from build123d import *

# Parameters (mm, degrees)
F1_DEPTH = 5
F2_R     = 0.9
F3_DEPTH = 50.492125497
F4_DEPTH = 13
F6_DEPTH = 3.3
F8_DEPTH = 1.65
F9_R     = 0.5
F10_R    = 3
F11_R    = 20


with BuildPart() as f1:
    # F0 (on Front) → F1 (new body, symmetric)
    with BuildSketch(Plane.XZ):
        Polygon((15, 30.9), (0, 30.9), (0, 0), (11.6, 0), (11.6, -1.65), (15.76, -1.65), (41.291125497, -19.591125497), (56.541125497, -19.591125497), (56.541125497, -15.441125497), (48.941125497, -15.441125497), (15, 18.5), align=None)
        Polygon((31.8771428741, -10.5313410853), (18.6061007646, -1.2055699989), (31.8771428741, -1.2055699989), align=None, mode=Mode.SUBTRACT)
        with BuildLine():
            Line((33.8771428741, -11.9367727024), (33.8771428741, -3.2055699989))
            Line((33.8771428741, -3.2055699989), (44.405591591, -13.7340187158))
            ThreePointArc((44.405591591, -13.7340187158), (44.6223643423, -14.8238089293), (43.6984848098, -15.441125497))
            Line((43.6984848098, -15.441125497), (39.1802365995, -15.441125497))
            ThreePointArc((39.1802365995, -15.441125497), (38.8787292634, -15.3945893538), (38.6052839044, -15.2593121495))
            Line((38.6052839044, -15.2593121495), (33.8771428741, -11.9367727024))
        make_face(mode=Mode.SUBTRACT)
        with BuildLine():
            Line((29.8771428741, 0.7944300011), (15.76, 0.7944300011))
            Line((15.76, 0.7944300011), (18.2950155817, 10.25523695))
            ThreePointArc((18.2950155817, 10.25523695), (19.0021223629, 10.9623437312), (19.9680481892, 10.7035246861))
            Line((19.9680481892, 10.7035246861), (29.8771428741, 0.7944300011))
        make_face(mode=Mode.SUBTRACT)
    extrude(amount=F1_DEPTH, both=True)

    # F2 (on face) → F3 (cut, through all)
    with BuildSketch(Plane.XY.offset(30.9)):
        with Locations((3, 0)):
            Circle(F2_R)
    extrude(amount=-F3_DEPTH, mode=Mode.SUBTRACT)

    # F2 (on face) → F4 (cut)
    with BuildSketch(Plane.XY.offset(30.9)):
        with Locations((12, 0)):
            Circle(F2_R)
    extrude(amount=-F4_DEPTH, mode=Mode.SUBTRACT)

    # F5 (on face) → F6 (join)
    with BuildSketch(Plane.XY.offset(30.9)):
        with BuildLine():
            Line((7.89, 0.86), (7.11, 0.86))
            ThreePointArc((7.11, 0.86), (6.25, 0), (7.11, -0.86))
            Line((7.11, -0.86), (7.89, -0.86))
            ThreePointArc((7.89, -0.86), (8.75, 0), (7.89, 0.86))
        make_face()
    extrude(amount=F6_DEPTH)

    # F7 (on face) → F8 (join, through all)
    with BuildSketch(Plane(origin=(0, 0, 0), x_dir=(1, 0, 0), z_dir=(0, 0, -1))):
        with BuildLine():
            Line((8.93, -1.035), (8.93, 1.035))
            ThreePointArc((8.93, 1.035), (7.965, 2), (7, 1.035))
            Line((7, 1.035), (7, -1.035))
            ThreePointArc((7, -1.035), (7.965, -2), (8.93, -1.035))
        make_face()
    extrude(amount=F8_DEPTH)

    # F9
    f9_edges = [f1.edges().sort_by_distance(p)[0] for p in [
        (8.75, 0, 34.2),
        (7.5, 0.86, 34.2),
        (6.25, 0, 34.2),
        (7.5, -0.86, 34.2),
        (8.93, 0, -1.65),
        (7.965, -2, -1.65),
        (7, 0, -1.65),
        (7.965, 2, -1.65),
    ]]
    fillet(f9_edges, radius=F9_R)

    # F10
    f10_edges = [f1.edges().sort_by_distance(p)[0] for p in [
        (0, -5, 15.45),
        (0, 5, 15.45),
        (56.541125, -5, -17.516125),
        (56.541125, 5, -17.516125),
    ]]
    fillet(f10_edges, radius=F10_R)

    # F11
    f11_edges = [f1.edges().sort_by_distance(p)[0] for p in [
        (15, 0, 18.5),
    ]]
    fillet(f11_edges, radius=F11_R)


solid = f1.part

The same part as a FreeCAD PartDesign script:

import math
import FreeCAD as App
import Part
import Sketcher

V = App.Vector
Q = App.Units.Quantity


def edges_at(feature, points):
    """Names of the edges that pass closest to the given points."""
    edges = feature.Shape.Edges
    near = lambda p: min(range(len(edges)), key=lambda i: edges[i].distToShape(Part.Vertex(*p))[0])
    return sorted({f"Edge{near(p) + 1}" for p in points})


def add_polygon(sketch, points):
    """Adds a closed chain of lines whose ends are joined by coincident constraints."""
    first, n = sketch.GeometryCount, len(points)
    for a, b in zip(points, points[1:] + points[:1]):
        sketch.addGeometry(Part.LineSegment(App.Vector(*a, 0), App.Vector(*b, 0)), False)
    for i in range(n):
        sketch.addConstraint(Sketcher.Constraint("Coincident", first + i, 2, first + (i + 1) % n, 1))

doc = App.newDocument("Part")
body = doc.addObject("PartDesign::Body", "Body")

# Sketch on XZ plane
sketch1 = doc.addObject("Sketcher::SketchObject", "Sketch")
body.addObject(sketch1)
sketch1.AttachmentSupport = (doc.XZ_Plane, [""])
sketch1.MapMode = "FlatFace"
add_polygon(sketch1, [(15, 30.9), (0, 30.9), (0, 0), (11.6, 0), (11.6, -1.6), (15.8, -1.6), (41.3, -19.6), (56.5, -19.6), (56.5, -15.4), (48.9, -15.4), (15, 18.5)])  # lines 0-10
add_polygon(sketch1, [(31.9, -1.2), (31.9, -10.5), (18.6, -1.2)])  # lines 11-13
sketch1.addGeometry(Part.LineSegment(V(38.6, -15.3, 0), V(33.9, -11.9, 0)), False)  # 14
sketch1.addGeometry(Part.LineSegment(V(33.9, -11.9, 0), V(33.9, -3.2, 0)), False)  # 15
sketch1.addGeometry(Part.LineSegment(V(33.9, -3.2, 0), V(44.4, -13.7, 0)), False)  # 16
sketch1.addGeometry(Part.ArcOfCircle(Part.Circle(V(43.7, -14.4, 0), V(0, 0, 1), 1), math.radians(-90), math.radians(45)), False)  # 17
sketch1.addGeometry(Part.LineSegment(V(43.7, -15.4, 0), V(39.2, -15.4, 0)), False)  # 18
sketch1.addGeometry(Part.ArcOfCircle(Part.Circle(V(39.2, -14.4, 0), V(0, 0, 1), 1), math.radians(-125), math.radians(-90)), False)  # 19
sketch1.addGeometry(Part.LineSegment(V(20, 10.7, 0), V(29.9, 0.8, 0)), False)  # 20
sketch1.addGeometry(Part.LineSegment(V(29.9, 0.8, 0), V(15.8, 0.8, 0)), False)  # 21
sketch1.addGeometry(Part.LineSegment(V(15.8, 0.8, 0), V(18.3, 10.3, 0)), False)  # 22
sketch1.addGeometry(Part.ArcOfCircle(Part.Circle(V(19.3, 10, 0), V(0, 0, 1), 1), math.radians(45), math.radians(165)), False)  # 23
sketch1.addConstraint(Sketcher.Constraint("Coincident", 14, 2, 15, 1))
sketch1.addConstraint(Sketcher.Constraint("Coincident", 15, 2, 16, 1))
sketch1.addConstraint(Sketcher.Constraint("Tangent", 16, 2, 17, 2))
sketch1.addConstraint(Sketcher.Constraint("Tangent", 17, 1, 18, 1))
sketch1.addConstraint(Sketcher.Constraint("Tangent", 18, 2, 19, 2))
sketch1.addConstraint(Sketcher.Constraint("Tangent", 19, 1, 14, 1))
sketch1.addConstraint(Sketcher.Constraint("Coincident", 20, 2, 21, 1))
sketch1.addConstraint(Sketcher.Constraint("Coincident", 21, 2, 22, 1))
sketch1.addConstraint(Sketcher.Constraint("Tangent", 22, 2, 23, 2))
sketch1.addConstraint(Sketcher.Constraint("Tangent", 23, 1, 20, 1))
sketch1.addConstraint(Sketcher.Constraint("Horizontal", 0))
sketch1.addConstraint(Sketcher.Constraint("Vertical", 1))
sketch1.addConstraint(Sketcher.Constraint("Horizontal", 2))
sketch1.addConstraint(Sketcher.Constraint("Vertical", 3))
sketch1.addConstraint(Sketcher.Constraint("Horizontal", 4))
sketch1.addConstraint(Sketcher.Constraint("Horizontal", 6))
sketch1.addConstraint(Sketcher.Constraint("Vertical", 7))
sketch1.addConstraint(Sketcher.Constraint("Horizontal", 8))
sketch1.addConstraint(Sketcher.Constraint("Vertical", 10))
sketch1.addConstraint(Sketcher.Constraint("Vertical", 11))
sketch1.addConstraint(Sketcher.Constraint("Horizontal", 13))
sketch1.addConstraint(Sketcher.Constraint("Vertical", 15))
sketch1.addConstraint(Sketcher.Constraint("Horizontal", 18))
sketch1.addConstraint(Sketcher.Constraint("Horizontal", 21))
sketch1.addConstraint(Sketcher.Constraint("Coincident", 1, 2, -1, 1))
sketch1.addConstraint(Sketcher.Constraint("Equal", 17, 19))
sketch1.addConstraint(Sketcher.Constraint("Equal", 19, 23))
sketch1.addConstraint(Sketcher.Constraint("Parallel", 5, 12))
sketch1.addConstraint(Sketcher.Constraint("Parallel", 12, 14))
sketch1.addConstraint(Sketcher.Constraint("Parallel", 9, 16))
sketch1.addConstraint(Sketcher.Constraint("Parallel", 16, 20))
sketch1.addConstraint(Sketcher.Constraint("Horizontal", 8, 2, 17, 1))
sketch1.addConstraint(Sketcher.Constraint("Vertical", 4, 2, 21, 2))
sketch1.addConstraint(Sketcher.Constraint("Radius", 17, Q("1 mm")))
sketch1.addConstraint(Sketcher.Constraint("DistanceX", 0, 2, 0, 1, Q("15 mm")))
sketch1.addConstraint(Sketcher.Constraint("Angle", 9, Q("135 deg")))
sketch1.addConstraint(Sketcher.Constraint("Angle", 22, Q("75 deg")))
sketch1.addConstraint(Sketcher.Constraint("Distance", 9, Q("48 mm")))
sketch1.addConstraint(Sketcher.Constraint("DistanceX", 2, 1, 2, 2, Q("11.6 mm")))
sketch1.addConstraint(Sketcher.Constraint("DistanceX", 8, 2, 8, 1, Q("7.6 mm")))
sketch1.addConstraint(Sketcher.Constraint("DistanceY", 1, 2, 1, 1, Q("30.9 mm")))
sketch1.addConstraint(Sketcher.Constraint("DistanceY", 10, 1, 10, 2, Q("12.4 mm")))
sketch1.addConstraint(Sketcher.Constraint("DistanceX", 11, 2, 14, 2, Q("2 mm")))
sketch1.addConstraint(Sketcher.Constraint("DistanceY", 15, 2, 13, 2, Q("2 mm")))
sketch1.addConstraint(Sketcher.Constraint("DistanceX", 20, 2, 13, 2, Q("2 mm")))
sketch1.addConstraint(Sketcher.Constraint("DistanceY", 13, 2, 20, 2, Q("2 mm")))
sketch1.addConstraint(Sketcher.Constraint("DistanceX", 4, 1, 4, 2, Q("4.16 mm")))
sketch1.addConstraint(Sketcher.Constraint("DistanceX", 6, 1, 6, 2, Q("15.25 mm")))
sketch1.addConstraint(Sketcher.Constraint("DistanceY", 3, 2, 3, 1, Q("1.65 mm")))
sketch1.addConstraint(Sketcher.Constraint("DistanceY", 7, 1, 7, 2, Q("4.15 mm")))
sketch1.addConstraint(Sketcher.Constraint("DistanceX", 18, 2, 18, 1, Q("4.518248 mm")))
sketch1.addConstraint(Sketcher.Constraint("DistanceY", 11, 2, 11, 1, Q("9.325771 mm")))
sketch1.addConstraint(Sketcher.Constraint("DistanceX", -1, 1, 12, 2, Q("18.606101 mm")))
sketch1.addConstraint(Sketcher.Constraint("DistanceY", 15, 1, 15, 2, Q("8.731203 mm")))
pad1 = doc.addObject("PartDesign::Pad", "Pad")
body.addObject(pad1)
pad1.Profile = sketch1
pad1.Length = 10
pad1.Midplane = True

# Sketch on XY plane
sketch2 = doc.addObject("Sketcher::SketchObject", "Sketch001")
body.addObject(sketch2)
sketch2.AttachmentSupport = (doc.XY_Plane, [""])
sketch2.MapMode = "FlatFace"
sketch2.AttachmentOffset = App.Placement(V(0, 0, 30.9), App.Rotation())
sketch2.addGeometry(Part.Circle(V(3, 0, 0), V(0, 0, 1), 0.9), False)
sketch2.addConstraint(Sketcher.Constraint("PointOnObject", 0, 3, -1))
sketch2.addConstraint(Sketcher.Constraint("Diameter", 0, Q("1.8 mm")))
sketch2.addConstraint(Sketcher.Constraint("DistanceX", -1, 1, 0, 3, Q("3 mm")))
pocket1 = doc.addObject("PartDesign::Pocket", "Pocket")
body.addObject(pocket1)
pocket1.Profile = sketch2
pocket1.Type = "ThroughAll"

# Sketch on XY plane
sketch3 = doc.addObject("Sketcher::SketchObject", "Sketch002")
body.addObject(sketch3)
sketch3.AttachmentSupport = (doc.XY_Plane, [""])
sketch3.MapMode = "FlatFace"
sketch3.AttachmentOffset = App.Placement(V(0, 0, 30.9), App.Rotation())
sketch3.addGeometry(Part.Circle(V(12, 0, 0), V(0, 0, 1), 0.9), False)
sketch3.addConstraint(Sketcher.Constraint("PointOnObject", 0, 3, -1))
sketch3.addConstraint(Sketcher.Constraint("Diameter", 0, Q("1.8 mm")))
sketch3.addConstraint(Sketcher.Constraint("DistanceX", -1, 1, 0, 3, Q("12 mm")))
pocket2 = doc.addObject("PartDesign::Pocket", "Pocket001")
body.addObject(pocket2)
pocket2.Profile = sketch3
pocket2.Length = 13

# Sketch on XY plane
sketch4 = doc.addObject("Sketcher::SketchObject", "Sketch003")
body.addObject(sketch4)
sketch4.AttachmentSupport = (doc.XY_Plane, [""])
sketch4.MapMode = "FlatFace"
sketch4.AttachmentOffset = App.Placement(V(0, 0, 30.9), App.Rotation())
sketch4.addGeometry(Part.LineSegment(V(7.9, 0.9, 0), V(7.1, 0.9, 0)), False)
sketch4.addGeometry(Part.ArcOfCircle(Part.Circle(V(7.1, 0, 0), V(0, 0, 1), 0.9), math.radians(90), math.radians(270)), False)
sketch4.addGeometry(Part.LineSegment(V(7.1, -0.9, 0), V(7.9, -0.9, 0)), False)
sketch4.addGeometry(Part.ArcOfCircle(Part.Circle(V(7.9, 0, 0), V(0, 0, 1), 0.9), math.radians(-90), math.radians(90)), False)
sketch4.addConstraint(Sketcher.Constraint("Tangent", 0, 2, 1, 1))
sketch4.addConstraint(Sketcher.Constraint("Tangent", 1, 2, 2, 1))
sketch4.addConstraint(Sketcher.Constraint("Tangent", 2, 2, 3, 1))
sketch4.addConstraint(Sketcher.Constraint("Tangent", 3, 2, 0, 1))
sketch4.addConstraint(Sketcher.Constraint("Horizontal", 0))
sketch4.addConstraint(Sketcher.Constraint("Horizontal", 2))
sketch4.addConstraint(Sketcher.Constraint("PointOnObject", 1, 3, -1))
sketch4.addConstraint(Sketcher.Constraint("Radius", 1, Q("0.86 mm")))
sketch4.addConstraint(Sketcher.Constraint("DistanceX", 0, 2, 0, 1, Q("0.78 mm")))
sketch4.addConstraint(Sketcher.Constraint("DistanceX", -1, 1, 1, 3, Q("7.11 mm")))
pad2 = doc.addObject("PartDesign::Pad", "Pad001")
body.addObject(pad2)
pad2.Profile = sketch4
pad2.Length = 3.3

# Sketch on XY plane
sketch5 = doc.addObject("Sketcher::SketchObject", "Sketch004")
body.addObject(sketch5)
sketch5.AttachmentSupport = (doc.XY_Plane, [""])
sketch5.MapMode = "FlatFace"
sketch5.addGeometry(Part.LineSegment(V(8.9, 1, 0), V(8.9, -1, 0)), False)
sketch5.addGeometry(Part.ArcOfCircle(Part.Circle(V(8, -1, 0), V(0, 0, 1), 1), math.radians(180), math.radians(360)), False)
sketch5.addGeometry(Part.LineSegment(V(7, -1, 0), V(7, 1, 0)), False)
sketch5.addGeometry(Part.ArcOfCircle(Part.Circle(V(8, 1, 0), V(0, 0, 1), 1), math.radians(0), math.radians(180)), False)
sketch5.addConstraint(Sketcher.Constraint("Tangent", 0, 2, 1, 2))
sketch5.addConstraint(Sketcher.Constraint("Tangent", 1, 1, 2, 1))
sketch5.addConstraint(Sketcher.Constraint("Tangent", 2, 2, 3, 2))
sketch5.addConstraint(Sketcher.Constraint("Tangent", 3, 1, 0, 1))
sketch5.addConstraint(Sketcher.Constraint("Vertical", 0))
sketch5.addConstraint(Sketcher.Constraint("Vertical", 2))
sketch5.addConstraint(Sketcher.Constraint("DistanceX", -1, 1, 1, 1, Q("7 mm")))
sketch5.addConstraint(Sketcher.Constraint("Radius", 1, Q("0.965 mm")))
sketch5.addConstraint(Sketcher.Constraint("DistanceY", 0, 2, 0, 1, Q("2.07 mm")))
sketch5.addConstraint(Sketcher.Constraint("DistanceY", 1, 3, -1, 1, Q("1.035 mm")))
pad3 = doc.addObject("PartDesign::Pad", "Pad002")
body.addObject(pad3)
pad3.Profile = sketch5
pad3.Length = 1.65
pad3.Reversed = True
doc.recompute()

fillet = doc.addObject("PartDesign::Fillet", "Fillet")
body.addObject(fillet)
fillet.Base = (pad3, edges_at(pad3, [
    (8.75, 0, 34.2),
    (7.5, 0.86, 34.2),
    (6.25, 0, 34.2),
    (7.5, -0.86, 34.2),
    (8.93, 0, -1.65),
    (7.965, -2, -1.65),
    (7, 0, -1.65),
    (7.965, 2, -1.65),
]))
fillet.Radius = 0.5
doc.recompute()

fillet2 = doc.addObject("PartDesign::Fillet", "Fillet001")
body.addObject(fillet2)
fillet2.Base = (fillet, edges_at(fillet, [
    (0, -5, 15.45),
    (0, 5, 15.45),
    (56.541, -5, -17.516),
    (56.541, 5, -17.516),
]))
fillet2.Radius = 3
doc.recompute()

fillet3 = doc.addObject("PartDesign::Fillet", "Fillet002")
body.addObject(fillet3)
fillet3.Base = (fillet2, edges_at(fillet2, [(15, 0, 18.5)]))
fillet3.Radius = 20

doc.recompute()
